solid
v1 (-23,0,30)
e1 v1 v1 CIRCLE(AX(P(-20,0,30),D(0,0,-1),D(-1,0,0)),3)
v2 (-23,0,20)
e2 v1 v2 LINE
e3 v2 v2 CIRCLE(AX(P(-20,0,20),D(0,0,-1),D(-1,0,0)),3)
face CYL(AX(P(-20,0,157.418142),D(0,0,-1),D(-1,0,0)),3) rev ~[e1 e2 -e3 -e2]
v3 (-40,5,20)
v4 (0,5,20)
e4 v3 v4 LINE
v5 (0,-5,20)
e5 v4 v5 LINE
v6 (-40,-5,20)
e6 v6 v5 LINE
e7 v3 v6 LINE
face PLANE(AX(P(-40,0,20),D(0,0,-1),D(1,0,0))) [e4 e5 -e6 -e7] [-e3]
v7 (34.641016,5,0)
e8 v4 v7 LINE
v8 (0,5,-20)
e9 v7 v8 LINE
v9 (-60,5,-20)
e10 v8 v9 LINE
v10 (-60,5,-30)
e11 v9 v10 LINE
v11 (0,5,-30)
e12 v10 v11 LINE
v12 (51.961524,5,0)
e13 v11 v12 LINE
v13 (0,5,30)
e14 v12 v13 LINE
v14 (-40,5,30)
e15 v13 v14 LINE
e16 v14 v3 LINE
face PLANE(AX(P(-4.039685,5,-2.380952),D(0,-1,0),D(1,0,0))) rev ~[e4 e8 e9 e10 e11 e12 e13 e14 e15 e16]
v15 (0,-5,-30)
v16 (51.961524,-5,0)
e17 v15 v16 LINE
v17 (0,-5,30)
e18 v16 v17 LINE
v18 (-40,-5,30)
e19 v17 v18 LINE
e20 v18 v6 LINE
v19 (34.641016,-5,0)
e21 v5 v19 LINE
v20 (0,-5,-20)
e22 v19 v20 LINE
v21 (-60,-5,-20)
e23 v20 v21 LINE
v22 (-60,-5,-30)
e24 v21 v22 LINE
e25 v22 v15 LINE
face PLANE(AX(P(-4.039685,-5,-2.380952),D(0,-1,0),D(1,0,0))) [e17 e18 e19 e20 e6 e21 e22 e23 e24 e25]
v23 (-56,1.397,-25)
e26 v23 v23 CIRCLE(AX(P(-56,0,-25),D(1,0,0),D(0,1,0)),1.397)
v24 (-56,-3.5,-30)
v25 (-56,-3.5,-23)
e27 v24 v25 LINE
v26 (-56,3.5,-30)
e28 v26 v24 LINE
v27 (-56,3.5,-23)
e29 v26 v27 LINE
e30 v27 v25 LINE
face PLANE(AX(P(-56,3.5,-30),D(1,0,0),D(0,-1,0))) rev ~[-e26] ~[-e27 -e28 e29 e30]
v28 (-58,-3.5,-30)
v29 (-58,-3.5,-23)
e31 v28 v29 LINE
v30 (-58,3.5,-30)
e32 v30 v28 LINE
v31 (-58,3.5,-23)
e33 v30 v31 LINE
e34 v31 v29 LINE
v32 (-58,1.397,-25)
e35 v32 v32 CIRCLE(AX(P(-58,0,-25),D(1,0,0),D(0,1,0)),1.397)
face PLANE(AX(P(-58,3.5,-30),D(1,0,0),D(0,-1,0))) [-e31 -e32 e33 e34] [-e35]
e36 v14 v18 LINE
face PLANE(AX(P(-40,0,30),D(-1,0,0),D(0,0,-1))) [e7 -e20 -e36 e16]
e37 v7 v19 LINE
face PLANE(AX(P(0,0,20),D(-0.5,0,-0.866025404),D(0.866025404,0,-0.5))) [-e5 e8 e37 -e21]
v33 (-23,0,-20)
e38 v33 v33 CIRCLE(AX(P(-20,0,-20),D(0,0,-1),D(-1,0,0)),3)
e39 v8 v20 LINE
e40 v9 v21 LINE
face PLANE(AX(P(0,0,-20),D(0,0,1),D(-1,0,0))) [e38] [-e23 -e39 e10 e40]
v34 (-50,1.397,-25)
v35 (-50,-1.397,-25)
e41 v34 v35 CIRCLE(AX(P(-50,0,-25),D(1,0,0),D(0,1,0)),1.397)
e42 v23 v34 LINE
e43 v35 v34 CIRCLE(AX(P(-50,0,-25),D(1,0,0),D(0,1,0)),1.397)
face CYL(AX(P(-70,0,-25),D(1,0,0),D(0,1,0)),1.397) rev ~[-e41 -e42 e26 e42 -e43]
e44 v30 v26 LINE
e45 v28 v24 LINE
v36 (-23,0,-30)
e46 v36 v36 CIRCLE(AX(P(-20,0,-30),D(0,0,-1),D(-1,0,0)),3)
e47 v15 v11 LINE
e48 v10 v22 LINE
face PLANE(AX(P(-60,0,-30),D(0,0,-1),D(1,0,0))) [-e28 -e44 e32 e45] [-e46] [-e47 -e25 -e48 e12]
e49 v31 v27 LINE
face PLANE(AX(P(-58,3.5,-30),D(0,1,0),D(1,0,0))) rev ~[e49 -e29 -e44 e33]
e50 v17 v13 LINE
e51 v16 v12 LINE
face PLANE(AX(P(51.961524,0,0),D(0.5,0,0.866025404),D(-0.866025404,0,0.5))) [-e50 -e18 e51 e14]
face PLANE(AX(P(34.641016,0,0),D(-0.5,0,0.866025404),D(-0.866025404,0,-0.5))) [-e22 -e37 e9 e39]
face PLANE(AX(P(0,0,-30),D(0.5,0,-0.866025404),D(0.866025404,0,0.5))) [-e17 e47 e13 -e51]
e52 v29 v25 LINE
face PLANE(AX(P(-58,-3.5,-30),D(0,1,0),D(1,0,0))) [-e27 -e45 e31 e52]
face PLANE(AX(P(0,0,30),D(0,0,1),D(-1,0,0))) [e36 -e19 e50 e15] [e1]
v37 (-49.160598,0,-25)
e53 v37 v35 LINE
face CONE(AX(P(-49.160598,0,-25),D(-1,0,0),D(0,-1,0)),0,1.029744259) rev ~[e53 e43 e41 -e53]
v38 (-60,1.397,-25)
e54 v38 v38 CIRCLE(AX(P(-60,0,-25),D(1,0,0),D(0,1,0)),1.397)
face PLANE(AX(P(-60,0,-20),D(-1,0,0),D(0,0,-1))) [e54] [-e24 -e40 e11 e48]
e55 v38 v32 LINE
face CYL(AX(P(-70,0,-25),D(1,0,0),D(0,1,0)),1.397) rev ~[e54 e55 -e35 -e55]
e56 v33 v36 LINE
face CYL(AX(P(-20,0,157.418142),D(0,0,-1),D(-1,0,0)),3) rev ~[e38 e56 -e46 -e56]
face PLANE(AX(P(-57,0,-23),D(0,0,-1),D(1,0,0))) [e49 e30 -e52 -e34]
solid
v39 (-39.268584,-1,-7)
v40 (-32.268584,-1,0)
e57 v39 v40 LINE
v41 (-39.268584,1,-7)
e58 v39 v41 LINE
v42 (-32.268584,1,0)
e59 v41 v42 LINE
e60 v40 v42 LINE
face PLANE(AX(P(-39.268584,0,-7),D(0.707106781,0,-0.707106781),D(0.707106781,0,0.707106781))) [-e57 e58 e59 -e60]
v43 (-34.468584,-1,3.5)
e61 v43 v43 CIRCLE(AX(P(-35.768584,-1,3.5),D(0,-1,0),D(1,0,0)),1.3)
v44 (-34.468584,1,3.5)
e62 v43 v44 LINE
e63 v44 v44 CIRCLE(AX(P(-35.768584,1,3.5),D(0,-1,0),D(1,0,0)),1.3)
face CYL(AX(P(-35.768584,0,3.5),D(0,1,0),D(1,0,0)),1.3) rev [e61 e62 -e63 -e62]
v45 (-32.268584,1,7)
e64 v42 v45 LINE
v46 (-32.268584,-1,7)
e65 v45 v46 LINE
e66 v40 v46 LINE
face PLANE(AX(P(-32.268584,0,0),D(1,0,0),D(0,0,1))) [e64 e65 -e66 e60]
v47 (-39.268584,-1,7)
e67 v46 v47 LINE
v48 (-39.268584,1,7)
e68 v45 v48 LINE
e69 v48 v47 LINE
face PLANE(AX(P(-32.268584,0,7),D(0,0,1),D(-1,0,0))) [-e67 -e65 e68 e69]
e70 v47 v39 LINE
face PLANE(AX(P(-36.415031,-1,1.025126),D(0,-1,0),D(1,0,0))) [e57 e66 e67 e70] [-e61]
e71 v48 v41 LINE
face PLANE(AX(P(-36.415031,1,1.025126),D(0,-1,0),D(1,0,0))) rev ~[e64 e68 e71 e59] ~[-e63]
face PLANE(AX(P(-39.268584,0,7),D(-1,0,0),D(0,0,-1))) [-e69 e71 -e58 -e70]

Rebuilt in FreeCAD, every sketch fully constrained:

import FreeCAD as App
import Part
import Sketcher

V = App.Vector
Q = App.Units.Quantity

doc = App.newDocument("Part")
body = doc.addObject("PartDesign::Body", "Body")

sketch1 = doc.addObject("Sketcher::SketchObject", "Sketch")
body.addObject(sketch1)
sketch1.AttachmentSupport = (doc.XZ_Plane, [""])
sketch1.MapMode = "FlatFace"
sketch1.addGeometry([
    Part.LineSegment(V(0, 30, 0), V(-40, 30, 0)),
    Part.LineSegment(V(-40, 30, 0), V(-40, 20, 0)),
    Part.LineSegment(V(-40, 20, 0), V(0, 20, 0)),
    Part.LineSegment(V(0, 20, 0), V(35, 0, 0)),
    Part.LineSegment(V(35, 0, 0), V(0, -20, 0)),
    Part.LineSegment(V(0, -20, 0), V(-60, -20, 0)),
    Part.LineSegment(V(-60, -20, 0), V(-60, -30, 0)),
    Part.LineSegment(V(-60, -30, 0), V(0, -30, 0)),
    Part.LineSegment(V(0, -30, 0), V(52, 0, 0)),
    Part.LineSegment(V(52, 0, 0), V(0, 30, 0)),
], False)
sketch1.addConstraint([
    Sketcher.Constraint("Coincident", 0, 2, 1, 1),
    Sketcher.Constraint("Coincident", 1, 2, 2, 1),
    Sketcher.Constraint("Coincident", 2, 2, 3, 1),
    Sketcher.Constraint("Coincident", 3, 2, 4, 1),
    Sketcher.Constraint("Coincident", 4, 2, 5, 1),
    Sketcher.Constraint("Coincident", 5, 2, 6, 1),
    Sketcher.Constraint("Coincident", 6, 2, 7, 1),
    Sketcher.Constraint("Coincident", 7, 2, 8, 1),
    Sketcher.Constraint("Coincident", 8, 2, 9, 1),
    Sketcher.Constraint("Coincident", 9, 2, 0, 1),
    Sketcher.Constraint("Horizontal", 0),
    Sketcher.Constraint("Vertical", 1),
    Sketcher.Constraint("Horizontal", 2),
    Sketcher.Constraint("Horizontal", 5),
    Sketcher.Constraint("Vertical", 6),
    Sketcher.Constraint("Horizontal", 7),
    Sketcher.Constraint("Symmetric", 2, 2, 4, 2, -1, 1),
    Sketcher.Constraint("Symmetric", 7, 2, 9, 2, -1, 1),
    Sketcher.Constraint("PointOnObject", 2, 2, -2),
    Sketcher.Constraint("PointOnObject", 3, 2, -1),
    Sketcher.Constraint("PointOnObject", 7, 2, -2),
    Sketcher.Constraint("PointOnObject", 8, 2, -1),
    Sketcher.Constraint("Parallel", 4, 8),
    Sketcher.Constraint("DistanceX", 0, 2, 0, 1, 40.0),
    Sketcher.Constraint("DistanceX", 5, 2, 5, 1, 60.0),
    Sketcher.Constraint("DistanceY", 1, 2, 1, 1, 10.0),
    Sketcher.Constraint("Angle", 3, Q("-30 deg")),
    Sketcher.Constraint("Distance", 3, 40.0),
])
pad1 = doc.addObject("PartDesign::Pad", "Pad")
body.addObject(pad1)
pad1.Profile = sketch1
pad1.Length = 10
pad1.Midplane = True

sketch2 = doc.addObject("Sketcher::SketchObject", "Sketch001")
body.addObject(sketch2)
sketch2.AttachmentSupport = (doc.XY_Plane, [""])
sketch2.MapMode = "FlatFace"
sketch2.AttachmentOffset = App.Placement(V(0, 0, -30), App.Rotation())
sketch2.addGeometry([
    Part.LineSegment(V(-58, -3.5, 0), V(-58, 3.5, 0)),
    Part.LineSegment(V(-58, 3.5, 0), V(-56, 3.5, 0)),
    Part.LineSegment(V(-56, 3.5, 0), V(-56, -3.5, 0)),
    Part.LineSegment(V(-56, -3.5, 0), V(-58, -3.5, 0)),
], False)
sketch2.addConstraint([
    Sketcher.Constraint("Coincident", 0, 2, 1, 1),
    Sketcher.Constraint("Coincident", 1, 2, 2, 1),
    Sketcher.Constraint("Coincident", 2, 2, 3, 1),
    Sketcher.Constraint("Coincident", 3, 2, 0, 1),
    Sketcher.Constraint("Vertical", 0),
    Sketcher.Constraint("Horizontal", 1),
    Sketcher.Constraint("Vertical", 2),
    Sketcher.Constraint("Horizontal", 3),
    Sketcher.Constraint("DistanceX", 1, 1, 1, 2, 2.0),
    Sketcher.Constraint("DistanceY", 0, 1, 0, 2, 7.0),
    Sketcher.Constraint("DistanceX", 0, 2, -1, 1, 58.0),
    Sketcher.Constraint("DistanceY", -1, 1, 0, 2, 3.5),
])
pocket1 = doc.addObject("PartDesign::Pocket", "Pocket")
body.addObject(pocket1)
pocket1.Profile = sketch2
pocket1.Length = 7
pocket1.Reversed = True

sketch3 = doc.addObject("Sketcher::SketchObject", "Sketch002")
body.addObject(sketch3)
sketch3.AttachmentSupport = (doc.YZ_Plane, [""])
sketch3.MapMode = "FlatFace"
sketch3.AttachmentOffset = App.Placement(V(0, 0, -60), App.Rotation())
sketch3.addGeometry(Part.Circle(V(0, -25, 0), V(0, 0, 1), 1.4), False)
sketch3.addConstraint([
    Sketcher.Constraint("PointOnObject", 0, 3, -2),
    Sketcher.Constraint("Diameter", 0, 2.794),
    Sketcher.Constraint("DistanceY", 0, 3, -1, 1, 25.0),
])
doc.recompute()
hole = doc.addObject("PartDesign::Hole", "Hole")
body.addObject(hole)
hole.Profile = sketch3
hole.ThreadType = "None"
hole.Diameter = 2.794
hole.DepthType = "Dimension"
hole.Depth = 10
hole.DrillPoint = "Angled"
hole.DrillPointAngle = 118
hole.Reversed = True

sketch4 = doc.addObject("Sketcher::SketchObject", "Sketch003")
body.addObject(sketch4)
sketch4.AttachmentSupport = (doc.XY_Plane, [""])
sketch4.MapMode = "FlatFace"
sketch4.AttachmentOffset = App.Placement(V(0, 0, 30), App.Rotation())
sketch4.addGeometry(Part.Circle(V(-20, 0, 0), V(0, 0, 1), 3), False)
sketch4.addConstraint([
    Sketcher.Constraint("PointOnObject", 0, 3, -1),
    Sketcher.Constraint("Diameter", 0, 6.0),
    Sketcher.Constraint("DistanceX", 0, 3, -1, 1, 20.0),
])
doc.recompute()
hole2 = doc.addObject("PartDesign::Hole", "Hole001")
body.addObject(hole2)
hole2.Profile = sketch4
hole2.ThreadType = "None"
hole2.Diameter = 6
hole2.DepthType = "ThroughAll"
body2 = doc.addObject("PartDesign::Body", "Body001")

sketch5 = doc.addObject("Sketcher::SketchObject", "Sketch004")
body2.addObject(sketch5)
sketch5.AttachmentSupport = (doc.getObject("XZ_Plane001"), [""])
sketch5.MapMode = "FlatFace"
sketch5.addGeometry([
    Part.LineSegment(V(-32.3, 0, 0), V(-32.3, 7, 0)),
    Part.LineSegment(V(-32.3, 7, 0), V(-39.3, 7, 0)),
    Part.LineSegment(V(-39.3, 7, 0), V(-39.3, -7, 0)),
    Part.LineSegment(V(-39.3, -7, 0), V(-32.3, 0, 0)),
    Part.Circle(V(-35.8, 3.5, 0), V(0, 0, 1), 1.3),
], False)
sketch5.addConstraint([
    Sketcher.Constraint("Coincident", 0, 2, 1, 1),
    Sketcher.Constraint("Coincident", 1, 2, 2, 1),
    Sketcher.Constraint("Coincident", 2, 2, 3, 1),
    Sketcher.Constraint("Coincident", 3, 2, 0, 1),
    Sketcher.Constraint("Vertical", 0),
    Sketcher.Constraint("Horizontal", 1),
    Sketcher.Constraint("Vertical", 2),
    Sketcher.Constraint("PointOnObject", 3, 2, -1),
    Sketcher.Constraint("Equal", 1, 0),
    Sketcher.Constraint("Diameter", 4, 2.6),
    Sketcher.Constraint("DistanceX", 1, 2, 1, 1, 7.0),
    Sketcher.Constraint("DistanceY", 2, 2, 2, 1, 14.0),
    Sketcher.Constraint("DistanceY", -1, 1, 4, 3, 3.5),
    Sketcher.Constraint("DistanceX", 4, 3, 0, 2, 3.5),
    Sketcher.Constraint("DistanceX", 4, 3, -1, 1, 35.768584),
])
pad2 = doc.addObject("PartDesign::Pad", "Pad001")
body2.addObject(pad2)
pad2.Profile = sketch5
pad2.Length = 2
pad2.Midplane = True

doc.recompute()
